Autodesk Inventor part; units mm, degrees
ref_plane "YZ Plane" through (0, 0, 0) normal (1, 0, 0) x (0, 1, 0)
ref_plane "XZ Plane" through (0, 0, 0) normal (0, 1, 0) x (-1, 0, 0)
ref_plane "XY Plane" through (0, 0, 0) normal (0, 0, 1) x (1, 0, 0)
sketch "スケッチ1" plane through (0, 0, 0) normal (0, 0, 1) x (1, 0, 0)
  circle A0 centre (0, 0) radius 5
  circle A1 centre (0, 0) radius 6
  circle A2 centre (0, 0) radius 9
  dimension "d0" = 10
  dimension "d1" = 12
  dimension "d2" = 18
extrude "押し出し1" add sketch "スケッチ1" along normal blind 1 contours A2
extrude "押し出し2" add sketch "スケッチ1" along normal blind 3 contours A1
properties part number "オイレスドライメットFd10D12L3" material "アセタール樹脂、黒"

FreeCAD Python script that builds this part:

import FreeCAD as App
import Part
import Sketcher
from FreeCAD import Vector
Q = App.Units.Quantity

doc = App.newDocument("Part")
body = doc.addObject("PartDesign::Body", "Body")

# Sketch on XY plane
sketch1 = doc.addObject("Sketcher::SketchObject", "Sketch")
body.addObject(sketch1)
sketch1.AttachmentSupport = (doc.XY_Plane, [""])
sketch1.MapMode = "FlatFace"
sketch1.addGeometry(Part.Circle(Vector(0, 0, 0), Vector(0, 0, 1), 9), False)
sketch1.addGeometry(Part.Circle(Vector(0, 0, 0), Vector(0, 0, 1), 6), False)
sketch1.addConstraint(Sketcher.Constraint("Coincident", 0, 3, -1, 1))
sketch1.addConstraint(Sketcher.Constraint("Coincident", 1, 3, -1, 1))
sketch1.addConstraint(Sketcher.Constraint("Diameter", 0, Q("18 mm")))
sketch1.addConstraint(Sketcher.Constraint("Diameter", 1, Q("12 mm")))
pad1 = doc.addObject("PartDesign::Pad", "Pad")
body.addObject(pad1)
pad1.Profile = sketch1
pad1.Length = 1

# Sketch on XY plane
sketch2 = doc.addObject("Sketcher::SketchObject", "Sketch001")
body.addObject(sketch2)
sketch2.AttachmentSupport = (doc.XY_Plane, [""])
sketch2.MapMode = "FlatFace"
sketch2.addGeometry(Part.Circle(Vector(0, 0, 0), Vector(0, 0, 1), 6), False)
sketch2.addGeometry(Part.Circle(Vector(0, 0, 0), Vector(0, 0, 1), 5), False)
sketch2.addConstraint(Sketcher.Constraint("Coincident", 0, 3, -1, 1))
sketch2.addConstraint(Sketcher.Constraint("Coincident", 1, 3, -1, 1))
sketch2.addConstraint(Sketcher.Constraint("Diameter", 0, Q("12 mm")))
sketch2.addConstraint(Sketcher.Constraint("Diameter", 1, Q("10 mm")))
pad2 = doc.addObject("PartDesign::Pad", "Pad001")
body.addObject(pad2)
pad2.Profile = sketch2
pad2.Length = 3

doc.recompute()
